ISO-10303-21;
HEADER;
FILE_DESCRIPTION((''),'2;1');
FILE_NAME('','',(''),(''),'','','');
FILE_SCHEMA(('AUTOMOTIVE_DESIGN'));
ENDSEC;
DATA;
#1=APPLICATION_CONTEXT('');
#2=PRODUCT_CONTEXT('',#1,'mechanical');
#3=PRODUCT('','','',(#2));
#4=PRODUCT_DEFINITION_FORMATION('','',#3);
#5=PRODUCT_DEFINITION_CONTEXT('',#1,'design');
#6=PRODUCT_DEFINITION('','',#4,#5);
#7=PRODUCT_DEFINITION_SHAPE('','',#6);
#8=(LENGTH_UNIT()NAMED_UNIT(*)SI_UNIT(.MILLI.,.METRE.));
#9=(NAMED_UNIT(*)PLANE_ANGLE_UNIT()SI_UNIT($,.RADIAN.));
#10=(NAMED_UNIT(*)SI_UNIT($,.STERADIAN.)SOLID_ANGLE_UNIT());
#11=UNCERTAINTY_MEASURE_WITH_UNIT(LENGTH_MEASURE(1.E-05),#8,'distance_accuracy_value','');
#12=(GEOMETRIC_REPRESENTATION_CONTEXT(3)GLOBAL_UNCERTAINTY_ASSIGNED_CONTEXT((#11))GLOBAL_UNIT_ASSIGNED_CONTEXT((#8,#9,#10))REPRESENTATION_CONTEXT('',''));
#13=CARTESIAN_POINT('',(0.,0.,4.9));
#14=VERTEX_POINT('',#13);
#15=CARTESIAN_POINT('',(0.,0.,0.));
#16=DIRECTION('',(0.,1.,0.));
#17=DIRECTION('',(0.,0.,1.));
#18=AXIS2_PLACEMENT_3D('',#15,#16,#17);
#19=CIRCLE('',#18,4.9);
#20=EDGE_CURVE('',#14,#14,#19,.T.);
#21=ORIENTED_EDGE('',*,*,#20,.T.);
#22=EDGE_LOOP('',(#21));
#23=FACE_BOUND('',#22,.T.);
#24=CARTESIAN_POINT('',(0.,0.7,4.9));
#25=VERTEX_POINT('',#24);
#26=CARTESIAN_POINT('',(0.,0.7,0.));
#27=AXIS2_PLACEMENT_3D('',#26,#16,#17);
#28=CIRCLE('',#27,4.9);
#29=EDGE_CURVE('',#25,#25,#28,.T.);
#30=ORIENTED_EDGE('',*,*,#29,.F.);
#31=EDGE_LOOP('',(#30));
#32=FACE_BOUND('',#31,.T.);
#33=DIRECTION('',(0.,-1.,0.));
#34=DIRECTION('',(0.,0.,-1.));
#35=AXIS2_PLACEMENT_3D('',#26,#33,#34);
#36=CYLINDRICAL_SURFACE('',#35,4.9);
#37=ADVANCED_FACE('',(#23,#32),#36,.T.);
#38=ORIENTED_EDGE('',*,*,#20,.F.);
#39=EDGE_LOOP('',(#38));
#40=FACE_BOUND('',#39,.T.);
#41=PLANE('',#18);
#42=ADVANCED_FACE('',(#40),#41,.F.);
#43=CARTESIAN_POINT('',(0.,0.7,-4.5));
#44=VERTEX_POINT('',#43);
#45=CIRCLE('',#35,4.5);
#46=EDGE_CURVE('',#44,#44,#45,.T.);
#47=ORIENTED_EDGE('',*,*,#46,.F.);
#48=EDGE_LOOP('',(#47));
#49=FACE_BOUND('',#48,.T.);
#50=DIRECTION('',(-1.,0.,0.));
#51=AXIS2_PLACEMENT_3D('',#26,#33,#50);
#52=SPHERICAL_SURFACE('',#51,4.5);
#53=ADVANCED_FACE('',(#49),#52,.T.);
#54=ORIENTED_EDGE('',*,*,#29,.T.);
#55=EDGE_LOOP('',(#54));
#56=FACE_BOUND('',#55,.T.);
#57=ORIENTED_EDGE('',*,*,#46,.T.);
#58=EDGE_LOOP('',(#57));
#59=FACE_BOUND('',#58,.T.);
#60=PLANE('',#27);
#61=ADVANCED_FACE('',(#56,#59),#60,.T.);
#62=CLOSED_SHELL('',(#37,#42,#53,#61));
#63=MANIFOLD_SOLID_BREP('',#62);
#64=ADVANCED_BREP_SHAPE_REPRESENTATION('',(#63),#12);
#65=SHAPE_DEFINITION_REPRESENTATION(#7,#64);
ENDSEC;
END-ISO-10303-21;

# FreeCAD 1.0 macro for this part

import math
import FreeCAD as App
import Part
import Sketcher

V = App.Vector
Q = App.Units.Quantity

doc = App.newDocument("Part")
params = doc.addObject("Spreadsheet::Sheet", "Params")
for row, (alias, value) in enumerate([
    ("sketch1_diameter", "9.8 mm"),
    ("pad1_length", "0.7 mm"),
    ("sketch2_radius", "4.5 mm"),
    ("revolution_angle", "360 deg"),
], start=1):
    params.set(f"A{row}", alias)
    params.set(f"B{row}", "=" + value)
    params.setAlias(f"B{row}", alias)

body = doc.addObject("PartDesign::Body", "Body")

# Sketch on XZ plane
sketch1 = body.newObject("Sketcher::SketchObject", "Sketch")
sketch1.AttachmentSupport = (doc.getObject("XZ_Plane"), [""])
sketch1.MapMode = "FlatFace"
sketch1.addGeometry(Part.Circle(V(0, 0, 0), V(0, 0, 1), 4.9), False)
sketch1.addConstraint(Sketcher.Constraint("Coincident", 0, 3, -1, 1))
sketch1.addConstraint(Sketcher.Constraint("Diameter", 0, Q("9.8 mm")))
sketch1.setExpression("Constraints[1]", "Params.sketch1_diameter")
pad1 = body.newObject("PartDesign::Pad", "Pad")
pad1.Profile = sketch1
pad1.setExpression("Length", "Params.pad1_length")
pad1.Reversed = True

# Sketch on XY plane
sketch2 = body.newObject("Sketcher::SketchObject", "Sketch001")
sketch2.AttachmentSupport = (doc.getObject("XY_Plane"), [""])
sketch2.MapMode = "FlatFace"
sketch2.addGeometry(Part.ArcOfCircle(Part.Circle(V(0, 0.7, 0), V(0, 0, 1), 4.5), math.radians(90), math.radians(180)), False)
sketch2.addGeometry(Part.LineSegment(V(-4.5, 0.7, 0), V(0, 0.7, 0)), False)
sketch2.addGeometry(Part.LineSegment(V(0, 0.7, 0), V(0, 5.2, 0)), False)
sketch2.addConstraint(Sketcher.Constraint("Coincident", 0, 2, 1, 1))
sketch2.addConstraint(Sketcher.Constraint("Coincident", 1, 2, 2, 1))
sketch2.addConstraint(Sketcher.Constraint("Coincident", 2, 2, 0, 1))
sketch2.addConstraint(Sketcher.Constraint("Horizontal", 1))
sketch2.addConstraint(Sketcher.Constraint("Vertical", 2))
sketch2.addConstraint(Sketcher.Constraint("Coincident", 1, 2, 0, 3))
sketch2.addConstraint(Sketcher.Constraint("PointOnObject", 0, 3, -2))
sketch2.addConstraint(Sketcher.Constraint("Radius", 0, Q("4.5 mm")))
sketch2.addConstraint(Sketcher.Constraint("DistanceY", -1, 1, 0, 3, Q("0.7 mm")))
sketch2.setExpression("Constraints[7]", "Params.sketch2_radius")
revolution = body.newObject("PartDesign::Revolution", "Revolution")
revolution.Profile = sketch2
revolution.ReferenceAxis = (sketch2, ["V_Axis"])
revolution.setExpression("Angle", "Params.revolution_angle")

doc.recompute()
